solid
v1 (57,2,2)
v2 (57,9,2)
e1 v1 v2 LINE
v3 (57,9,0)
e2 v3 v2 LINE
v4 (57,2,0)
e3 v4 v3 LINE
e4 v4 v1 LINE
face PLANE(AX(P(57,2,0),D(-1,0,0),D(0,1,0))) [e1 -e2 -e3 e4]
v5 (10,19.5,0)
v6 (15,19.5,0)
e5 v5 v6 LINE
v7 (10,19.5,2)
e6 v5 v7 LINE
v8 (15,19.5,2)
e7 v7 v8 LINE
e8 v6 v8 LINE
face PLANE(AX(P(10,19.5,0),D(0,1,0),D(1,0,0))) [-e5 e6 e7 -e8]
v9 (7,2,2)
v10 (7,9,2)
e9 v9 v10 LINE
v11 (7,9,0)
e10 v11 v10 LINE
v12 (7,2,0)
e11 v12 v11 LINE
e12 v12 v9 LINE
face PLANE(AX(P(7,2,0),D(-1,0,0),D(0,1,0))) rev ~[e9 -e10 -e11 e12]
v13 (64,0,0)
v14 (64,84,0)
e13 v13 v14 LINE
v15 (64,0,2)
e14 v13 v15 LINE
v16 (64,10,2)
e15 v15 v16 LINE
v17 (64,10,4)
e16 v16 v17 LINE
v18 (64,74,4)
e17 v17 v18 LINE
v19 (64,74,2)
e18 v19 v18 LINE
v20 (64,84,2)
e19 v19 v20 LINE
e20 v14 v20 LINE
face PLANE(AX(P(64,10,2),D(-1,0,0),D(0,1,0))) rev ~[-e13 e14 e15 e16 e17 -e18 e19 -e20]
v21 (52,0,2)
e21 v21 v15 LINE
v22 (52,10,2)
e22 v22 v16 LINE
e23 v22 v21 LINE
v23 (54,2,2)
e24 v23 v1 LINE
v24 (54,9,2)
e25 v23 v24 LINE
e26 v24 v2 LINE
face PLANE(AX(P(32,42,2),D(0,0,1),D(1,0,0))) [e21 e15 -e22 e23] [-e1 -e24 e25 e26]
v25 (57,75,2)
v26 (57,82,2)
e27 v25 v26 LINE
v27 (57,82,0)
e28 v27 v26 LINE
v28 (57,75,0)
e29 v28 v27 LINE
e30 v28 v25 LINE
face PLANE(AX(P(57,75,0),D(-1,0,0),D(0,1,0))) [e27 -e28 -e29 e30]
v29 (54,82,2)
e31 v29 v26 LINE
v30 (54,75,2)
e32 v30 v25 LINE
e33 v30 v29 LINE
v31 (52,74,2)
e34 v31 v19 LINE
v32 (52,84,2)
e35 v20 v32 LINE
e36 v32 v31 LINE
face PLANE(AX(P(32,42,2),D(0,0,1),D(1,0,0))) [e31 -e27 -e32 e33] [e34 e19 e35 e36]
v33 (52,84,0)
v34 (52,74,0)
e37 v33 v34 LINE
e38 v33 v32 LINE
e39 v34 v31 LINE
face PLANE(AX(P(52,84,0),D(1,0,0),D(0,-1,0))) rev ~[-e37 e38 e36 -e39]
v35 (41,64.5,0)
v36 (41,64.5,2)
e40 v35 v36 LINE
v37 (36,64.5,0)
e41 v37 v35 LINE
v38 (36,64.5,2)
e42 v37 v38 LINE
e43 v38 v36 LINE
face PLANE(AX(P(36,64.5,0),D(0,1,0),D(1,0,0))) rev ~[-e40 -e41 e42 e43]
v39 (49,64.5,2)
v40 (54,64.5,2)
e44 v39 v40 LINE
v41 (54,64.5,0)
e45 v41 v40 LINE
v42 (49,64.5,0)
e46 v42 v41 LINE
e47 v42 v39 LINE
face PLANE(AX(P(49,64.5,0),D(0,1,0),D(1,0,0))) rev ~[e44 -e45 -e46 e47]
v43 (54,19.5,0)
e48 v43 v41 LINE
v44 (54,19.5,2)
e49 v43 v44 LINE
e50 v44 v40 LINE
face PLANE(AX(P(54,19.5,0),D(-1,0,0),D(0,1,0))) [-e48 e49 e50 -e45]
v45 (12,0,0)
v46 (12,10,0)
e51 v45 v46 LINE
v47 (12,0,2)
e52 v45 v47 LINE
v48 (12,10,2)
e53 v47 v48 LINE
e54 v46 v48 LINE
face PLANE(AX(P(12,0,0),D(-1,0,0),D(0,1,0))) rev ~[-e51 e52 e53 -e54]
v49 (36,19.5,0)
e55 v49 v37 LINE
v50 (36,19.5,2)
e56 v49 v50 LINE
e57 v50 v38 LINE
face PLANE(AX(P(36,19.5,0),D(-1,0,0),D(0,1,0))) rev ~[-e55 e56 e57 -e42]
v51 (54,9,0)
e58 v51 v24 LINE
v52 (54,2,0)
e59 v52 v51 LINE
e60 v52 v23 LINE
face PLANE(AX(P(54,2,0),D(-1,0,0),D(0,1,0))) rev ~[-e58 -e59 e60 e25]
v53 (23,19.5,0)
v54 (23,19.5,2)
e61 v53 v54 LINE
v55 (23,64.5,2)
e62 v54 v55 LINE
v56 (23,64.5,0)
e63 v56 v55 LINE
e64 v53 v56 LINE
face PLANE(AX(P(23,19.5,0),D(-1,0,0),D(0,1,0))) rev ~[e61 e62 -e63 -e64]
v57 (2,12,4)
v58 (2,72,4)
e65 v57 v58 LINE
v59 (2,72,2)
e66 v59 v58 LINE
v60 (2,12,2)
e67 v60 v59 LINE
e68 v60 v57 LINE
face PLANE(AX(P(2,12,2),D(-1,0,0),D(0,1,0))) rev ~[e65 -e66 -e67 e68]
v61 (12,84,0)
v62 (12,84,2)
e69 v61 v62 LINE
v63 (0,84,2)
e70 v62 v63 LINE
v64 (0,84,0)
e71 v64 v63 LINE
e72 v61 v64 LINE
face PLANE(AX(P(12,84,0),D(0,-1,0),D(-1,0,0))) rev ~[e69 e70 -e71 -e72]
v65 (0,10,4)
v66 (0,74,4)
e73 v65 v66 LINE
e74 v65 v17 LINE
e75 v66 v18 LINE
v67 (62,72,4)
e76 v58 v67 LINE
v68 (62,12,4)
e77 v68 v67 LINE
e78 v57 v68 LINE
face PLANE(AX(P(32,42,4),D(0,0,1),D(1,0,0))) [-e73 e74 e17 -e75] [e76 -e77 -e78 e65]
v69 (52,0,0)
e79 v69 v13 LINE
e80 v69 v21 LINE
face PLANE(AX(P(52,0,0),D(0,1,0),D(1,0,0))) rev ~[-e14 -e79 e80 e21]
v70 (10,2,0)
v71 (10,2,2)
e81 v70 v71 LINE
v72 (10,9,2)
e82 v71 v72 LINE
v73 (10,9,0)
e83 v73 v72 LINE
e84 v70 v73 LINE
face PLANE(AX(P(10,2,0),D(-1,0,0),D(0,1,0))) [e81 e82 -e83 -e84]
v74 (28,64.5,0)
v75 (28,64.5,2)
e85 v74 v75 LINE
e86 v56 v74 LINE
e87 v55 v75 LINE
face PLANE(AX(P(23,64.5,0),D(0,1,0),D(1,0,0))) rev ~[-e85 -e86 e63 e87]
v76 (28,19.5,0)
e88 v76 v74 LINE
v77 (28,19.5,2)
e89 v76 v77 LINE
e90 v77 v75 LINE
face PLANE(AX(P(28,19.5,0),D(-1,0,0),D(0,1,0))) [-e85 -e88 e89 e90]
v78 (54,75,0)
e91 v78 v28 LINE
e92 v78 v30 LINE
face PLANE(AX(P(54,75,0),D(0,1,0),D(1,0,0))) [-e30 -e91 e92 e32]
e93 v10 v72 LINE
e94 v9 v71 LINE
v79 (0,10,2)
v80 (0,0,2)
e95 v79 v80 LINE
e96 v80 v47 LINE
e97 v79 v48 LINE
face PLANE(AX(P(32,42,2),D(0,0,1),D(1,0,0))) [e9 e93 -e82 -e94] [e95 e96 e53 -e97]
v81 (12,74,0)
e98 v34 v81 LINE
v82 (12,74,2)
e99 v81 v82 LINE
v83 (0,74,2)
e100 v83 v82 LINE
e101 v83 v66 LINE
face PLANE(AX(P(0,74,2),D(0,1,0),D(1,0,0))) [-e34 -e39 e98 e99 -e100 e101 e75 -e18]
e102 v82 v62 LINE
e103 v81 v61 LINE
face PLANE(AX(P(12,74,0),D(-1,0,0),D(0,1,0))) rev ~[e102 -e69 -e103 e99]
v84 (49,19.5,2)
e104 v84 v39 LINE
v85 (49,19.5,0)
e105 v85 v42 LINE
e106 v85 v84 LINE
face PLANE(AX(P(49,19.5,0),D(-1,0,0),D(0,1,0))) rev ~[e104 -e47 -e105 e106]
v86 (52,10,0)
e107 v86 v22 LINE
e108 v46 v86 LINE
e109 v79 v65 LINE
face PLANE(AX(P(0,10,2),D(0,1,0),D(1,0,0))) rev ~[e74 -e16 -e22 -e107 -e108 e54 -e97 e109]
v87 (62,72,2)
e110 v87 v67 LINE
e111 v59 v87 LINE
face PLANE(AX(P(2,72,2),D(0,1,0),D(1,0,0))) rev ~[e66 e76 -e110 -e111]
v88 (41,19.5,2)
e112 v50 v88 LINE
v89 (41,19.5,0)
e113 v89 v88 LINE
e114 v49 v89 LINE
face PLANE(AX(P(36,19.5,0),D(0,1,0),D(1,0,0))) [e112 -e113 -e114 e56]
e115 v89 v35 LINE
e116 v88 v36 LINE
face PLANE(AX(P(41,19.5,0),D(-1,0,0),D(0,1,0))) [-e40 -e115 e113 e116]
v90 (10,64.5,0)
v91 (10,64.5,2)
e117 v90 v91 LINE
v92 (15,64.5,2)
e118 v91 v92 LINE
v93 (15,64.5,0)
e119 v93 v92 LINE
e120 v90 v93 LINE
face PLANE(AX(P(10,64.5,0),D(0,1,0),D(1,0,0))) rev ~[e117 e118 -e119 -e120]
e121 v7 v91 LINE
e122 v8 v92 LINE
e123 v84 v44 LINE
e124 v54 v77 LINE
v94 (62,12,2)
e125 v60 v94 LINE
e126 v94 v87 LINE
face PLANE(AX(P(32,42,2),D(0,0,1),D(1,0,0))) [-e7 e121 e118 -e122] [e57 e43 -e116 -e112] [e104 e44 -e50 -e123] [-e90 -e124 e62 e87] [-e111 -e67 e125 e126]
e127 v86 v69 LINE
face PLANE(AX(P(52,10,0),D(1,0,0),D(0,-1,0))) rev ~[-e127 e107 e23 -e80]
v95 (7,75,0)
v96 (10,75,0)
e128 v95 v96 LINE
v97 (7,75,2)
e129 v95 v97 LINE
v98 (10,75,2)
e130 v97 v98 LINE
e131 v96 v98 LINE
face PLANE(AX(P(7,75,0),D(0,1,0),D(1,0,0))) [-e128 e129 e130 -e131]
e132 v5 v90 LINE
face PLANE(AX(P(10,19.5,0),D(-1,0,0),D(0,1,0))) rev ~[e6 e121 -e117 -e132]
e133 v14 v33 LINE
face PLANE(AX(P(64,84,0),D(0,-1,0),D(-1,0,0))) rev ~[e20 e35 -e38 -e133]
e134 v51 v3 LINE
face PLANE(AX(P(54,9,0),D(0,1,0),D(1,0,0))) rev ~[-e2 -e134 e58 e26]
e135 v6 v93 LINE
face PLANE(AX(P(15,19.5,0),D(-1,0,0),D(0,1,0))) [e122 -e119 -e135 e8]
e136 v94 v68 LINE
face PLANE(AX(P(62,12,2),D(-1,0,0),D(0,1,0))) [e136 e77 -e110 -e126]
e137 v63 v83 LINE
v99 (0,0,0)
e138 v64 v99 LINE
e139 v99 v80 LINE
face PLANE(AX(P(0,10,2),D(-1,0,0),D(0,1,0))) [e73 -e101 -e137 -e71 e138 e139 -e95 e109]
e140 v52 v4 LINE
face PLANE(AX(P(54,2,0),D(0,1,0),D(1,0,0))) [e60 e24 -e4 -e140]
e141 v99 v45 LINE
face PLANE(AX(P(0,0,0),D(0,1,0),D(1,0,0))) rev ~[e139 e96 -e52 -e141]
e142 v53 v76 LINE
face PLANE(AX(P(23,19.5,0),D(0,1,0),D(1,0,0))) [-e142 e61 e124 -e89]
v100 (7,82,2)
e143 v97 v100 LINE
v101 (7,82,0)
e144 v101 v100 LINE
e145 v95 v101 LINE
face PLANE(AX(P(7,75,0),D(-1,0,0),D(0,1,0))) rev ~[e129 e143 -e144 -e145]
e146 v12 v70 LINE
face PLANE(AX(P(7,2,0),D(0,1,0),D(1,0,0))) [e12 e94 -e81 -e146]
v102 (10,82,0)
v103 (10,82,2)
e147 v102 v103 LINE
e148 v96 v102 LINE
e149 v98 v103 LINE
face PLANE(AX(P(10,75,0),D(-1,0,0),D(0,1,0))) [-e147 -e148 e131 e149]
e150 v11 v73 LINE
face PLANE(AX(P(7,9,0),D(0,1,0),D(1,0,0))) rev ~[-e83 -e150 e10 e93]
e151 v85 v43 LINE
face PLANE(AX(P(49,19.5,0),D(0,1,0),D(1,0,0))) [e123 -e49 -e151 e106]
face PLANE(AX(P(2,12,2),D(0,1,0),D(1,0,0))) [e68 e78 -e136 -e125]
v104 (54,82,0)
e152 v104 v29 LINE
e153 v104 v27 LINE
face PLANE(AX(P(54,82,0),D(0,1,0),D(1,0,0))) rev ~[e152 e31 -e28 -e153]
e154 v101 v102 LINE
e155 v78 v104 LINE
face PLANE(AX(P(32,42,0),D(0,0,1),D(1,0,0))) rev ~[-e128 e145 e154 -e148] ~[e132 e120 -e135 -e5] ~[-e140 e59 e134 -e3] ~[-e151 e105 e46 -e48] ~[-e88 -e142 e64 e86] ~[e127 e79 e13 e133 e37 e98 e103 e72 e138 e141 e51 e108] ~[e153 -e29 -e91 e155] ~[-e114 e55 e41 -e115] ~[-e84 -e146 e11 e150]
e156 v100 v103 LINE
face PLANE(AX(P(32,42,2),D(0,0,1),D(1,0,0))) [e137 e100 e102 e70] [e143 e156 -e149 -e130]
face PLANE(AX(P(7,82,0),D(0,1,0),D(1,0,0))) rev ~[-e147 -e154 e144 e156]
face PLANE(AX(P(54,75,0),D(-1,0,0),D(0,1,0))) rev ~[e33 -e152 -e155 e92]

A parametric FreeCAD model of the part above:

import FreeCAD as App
import Part
import Sketcher
from FreeCAD import Vector
Q = App.Units.Quantity

doc = App.newDocument("Part")
body = doc.addObject("PartDesign::Body", "Body")

# Sketch on XY plane
sketch1 = body.newObject("Sketcher::SketchObject", "Sketch")
sketch1.AttachmentSupport = (doc.getObject("XY_Plane"), [""])
sketch1.MapMode = "FlatFace"
sketch1.addGeometry([
    Part.LineSegment(Vector(64, 0, 0), Vector(64, 84, 0)),  # 0
    Part.LineSegment(Vector(64, 84, 0), Vector(52, 84, 0)),  # 1
    Part.LineSegment(Vector(52, 84, 0), Vector(52, 74, 0)),  # 2
    Part.LineSegment(Vector(52, 74, 0), Vector(12, 74, 0)),  # 3
    Part.LineSegment(Vector(12, 74, 0), Vector(12, 84, 0)),  # 4
    Part.LineSegment(Vector(12, 84, 0), Vector(0, 84, 0)),  # 5
    Part.LineSegment(Vector(0, 84, 0), Vector(0, 0, 0)),  # 6
    Part.LineSegment(Vector(0, 0, 0), Vector(12, 0, 0)),  # 7
    Part.LineSegment(Vector(12, 0, 0), Vector(12, 10, 0)),  # 8
    Part.LineSegment(Vector(12, 10, 0), Vector(52, 10, 0)),  # 9
    Part.LineSegment(Vector(52, 10, 0), Vector(52, 0, 0)),  # 10
    Part.LineSegment(Vector(52, 0, 0), Vector(64, 0, 0)),  # 11
    Part.LineSegment(Vector(10, 2, 0), Vector(7, 2, 0)),  # 12
    Part.LineSegment(Vector(7, 2, 0), Vector(7, 9, 0)),  # 13
    Part.LineSegment(Vector(7, 9, 0), Vector(10, 9, 0)),  # 14
    Part.LineSegment(Vector(10, 9, 0), Vector(10, 2, 0)),  # 15
    Part.LineSegment(Vector(57, 2, 0), Vector(54, 2, 0)),  # 16
    Part.LineSegment(Vector(54, 2, 0), Vector(54, 9, 0)),  # 17
    Part.LineSegment(Vector(54, 9, 0), Vector(57, 9, 0)),  # 18
    Part.LineSegment(Vector(57, 9, 0), Vector(57, 2, 0)),  # 19
    Part.LineSegment(Vector(15, 19.5, 0), Vector(10, 19.5, 0)),  # 20
    Part.LineSegment(Vector(10, 19.5, 0), Vector(10, 64.5, 0)),  # 21
    Part.LineSegment(Vector(10, 64.5, 0), Vector(15, 64.5, 0)),  # 22
    Part.LineSegment(Vector(15, 64.5, 0), Vector(15, 19.5, 0)),  # 23
    Part.LineSegment(Vector(28, 19.5, 0), Vector(23, 19.5, 0)),  # 24
    Part.LineSegment(Vector(23, 19.5, 0), Vector(23, 64.5, 0)),  # 25
    Part.LineSegment(Vector(23, 64.5, 0), Vector(28, 64.5, 0)),  # 26
    Part.LineSegment(Vector(28, 64.5, 0), Vector(28, 19.5, 0)),  # 27
    Part.LineSegment(Vector(10, 75, 0), Vector(7, 75, 0)),  # 28
    Part.LineSegment(Vector(7, 75, 0), Vector(7, 82, 0)),  # 29
    Part.LineSegment(Vector(7, 82, 0), Vector(10, 82, 0)),  # 30
    Part.LineSegment(Vector(10, 82, 0), Vector(10, 75, 0)),  # 31
    Part.LineSegment(Vector(41, 19.5, 0), Vector(36, 19.5, 0)),  # 32
    Part.LineSegment(Vector(36, 19.5, 0), Vector(36, 64.5, 0)),  # 33
    Part.LineSegment(Vector(36, 64.5, 0), Vector(41, 64.5, 0)),  # 34
    Part.LineSegment(Vector(41, 64.5, 0), Vector(41, 19.5, 0)),  # 35
    Part.LineSegment(Vector(54, 19.5, 0), Vector(49, 19.5, 0)),  # 36
    Part.LineSegment(Vector(49, 19.5, 0), Vector(49, 64.5, 0)),  # 37
    Part.LineSegment(Vector(49, 64.5, 0), Vector(54, 64.5, 0)),  # 38
    Part.LineSegment(Vector(54, 64.5, 0), Vector(54, 19.5, 0)),  # 39
    Part.LineSegment(Vector(57, 75, 0), Vector(54, 75, 0)),  # 40
    Part.LineSegment(Vector(54, 75, 0), Vector(54, 82, 0)),  # 41
    Part.LineSegment(Vector(54, 82, 0), Vector(57, 82, 0)),  # 42
    Part.LineSegment(Vector(57, 82, 0), Vector(57, 75, 0)),  # 43
], False)
sketch1.addConstraint([
    Sketcher.Constraint("Coincident", 0, 2, 1, 1),
    Sketcher.Constraint("Coincident", 1, 2, 2, 1),
    Sketcher.Constraint("Coincident", 2, 2, 3, 1),
    Sketcher.Constraint("Coincident", 3, 2, 4, 1),
    Sketcher.Constraint("Coincident", 4, 2, 5, 1),
    Sketcher.Constraint("Coincident", 5, 2, 6, 1),
    Sketcher.Constraint("Coincident", 6, 2, 7, 1),
    Sketcher.Constraint("Coincident", 7, 2, 8, 1),
    Sketcher.Constraint("Coincident", 8, 2, 9, 1),
    Sketcher.Constraint("Coincident", 9, 2, 10, 1),
    Sketcher.Constraint("Coincident", 10, 2, 11, 1),
    Sketcher.Constraint("Coincident", 11, 2, 0, 1),
    Sketcher.Constraint("Coincident", 12, 2, 13, 1),
    Sketcher.Constraint("Coincident", 13, 2, 14, 1),
    Sketcher.Constraint("Coincident", 14, 2, 15, 1),
    Sketcher.Constraint("Coincident", 15, 2, 12, 1),
    Sketcher.Constraint("Coincident", 16, 2, 17, 1),
    Sketcher.Constraint("Coincident", 17, 2, 18, 1),
    Sketcher.Constraint("Coincident", 18, 2, 19, 1),
    Sketcher.Constraint("Coincident", 19, 2, 16, 1),
    Sketcher.Constraint("Coincident", 20, 2, 21, 1),
    Sketcher.Constraint("Coincident", 21, 2, 22, 1),
    Sketcher.Constraint("Coincident", 22, 2, 23, 1),
    Sketcher.Constraint("Coincident", 23, 2, 20, 1),
    Sketcher.Constraint("Coincident", 24, 2, 25, 1),
    Sketcher.Constraint("Coincident", 25, 2, 26, 1),
    Sketcher.Constraint("Coincident", 26, 2, 27, 1),
    Sketcher.Constraint("Coincident", 27, 2, 24, 1),
    Sketcher.Constraint("Coincident", 28, 2, 29, 1),
    Sketcher.Constraint("Coincident", 29, 2, 30, 1),
    Sketcher.Constraint("Coincident", 30, 2, 31, 1),
    Sketcher.Constraint("Coincident", 31, 2, 28, 1),
    Sketcher.Constraint("Coincident", 32, 2, 33, 1),
    Sketcher.Constraint("Coincident", 33, 2, 34, 1),
    Sketcher.Constraint("Coincident", 34, 2, 35, 1),
    Sketcher.Constraint("Coincident", 35, 2, 32, 1),
    Sketcher.Constraint("Coincident", 36, 2, 37, 1),
    Sketcher.Constraint("Coincident", 37, 2, 38, 1),
    Sketcher.Constraint("Coincident", 38, 2, 39, 1),
    Sketcher.Constraint("Coincident", 39, 2, 36, 1),
    Sketcher.Constraint("Coincident", 40, 2, 41, 1),
    Sketcher.Constraint("Coincident", 41, 2, 42, 1),
    Sketcher.Constraint("Coincident", 42, 2, 43, 1),
    Sketcher.Constraint("Coincident", 43, 2, 40, 1),
    Sketcher.Constraint("Vertical", 0),
    Sketcher.Constraint("Horizontal", 1),
    Sketcher.Constraint("Vertical", 2),
    Sketcher.Constraint("Horizontal", 3),
    Sketcher.Constraint("Vertical", 4),
    Sketcher.Constraint("Horizontal", 5),
    Sketcher.Constraint("Vertical", 6),
    Sketcher.Constraint("Horizontal", 7),
    Sketcher.Constraint("Vertical", 8),
    Sketcher.Constraint("Horizontal", 9),
    Sketcher.Constraint("Vertical", 10),
    Sketcher.Constraint("Horizontal", 11),
    Sketcher.Constraint("Horizontal", 12),
    Sketcher.Constraint("Vertical", 13),
    Sketcher.Constraint("Horizontal", 14),
    Sketcher.Constraint("Vertical", 15),
    Sketcher.Constraint("Horizontal", 16),
    Sketcher.Constraint("Vertical", 17),
    Sketcher.Constraint("Horizontal", 18),
    Sketcher.Constraint("Vertical", 19),
    Sketcher.Constraint("Horizontal", 20),
    Sketcher.Constraint("Vertical", 21),
    Sketcher.Constraint("Horizontal", 22),
    Sketcher.Constraint("Vertical", 23),
    Sketcher.Constraint("Horizontal", 24),
    Sketcher.Constraint("Vertical", 25),
    Sketcher.Constraint("Horizontal", 26),
    Sketcher.Constraint("Vertical", 27),
    Sketcher.Constraint("Horizontal", 28),
    Sketcher.Constraint("Vertical", 29),
    Sketcher.Constraint("Horizontal", 30),
    Sketcher.Constraint("Vertical", 31),
    Sketcher.Constraint("Horizontal", 32),
    Sketcher.Constraint("Vertical", 33),
    Sketcher.Constraint("Horizontal", 34),
    Sketcher.Constraint("Vertical", 35),
    Sketcher.Constraint("Horizontal", 36),
    Sketcher.Constraint("Vertical", 37),
    Sketcher.Constraint("Horizontal", 38),
    Sketcher.Constraint("Vertical", 39),
    Sketcher.Constraint("Horizontal", 40),
    Sketcher.Constraint("Vertical", 41),
    Sketcher.Constraint("Horizontal", 42),
    Sketcher.Constraint("Vertical", 43),
    Sketcher.Constraint("Coincident", 6, 2, -1, 1),
    Sketcher.Constraint("PointOnObject", 10, 2, -1),
    Sketcher.Constraint("Horizontal", 1, 2, 4, 2),
    Sketcher.Constraint("Horizontal", 15, 2, 16, 2),
    Sketcher.Constraint("Horizontal", 14, 2, 17, 2),
    Sketcher.Constraint("Horizontal", 23, 2, 24, 2),
    Sketcher.Constraint("Horizontal", 22, 2, 25, 2),
    Sketcher.Constraint("Horizontal", 27, 2, 32, 2),
    Sketcher.Constraint("Horizontal", 26, 2, 33, 2),
    Sketcher.Constraint("Horizontal", 35, 2, 36, 2),
    Sketcher.Constraint("Horizontal", 34, 2, 37, 2),
    Sketcher.Constraint("Horizontal", 31, 2, 40, 2),
    Sketcher.Constraint("Horizontal", 30, 2, 41, 2),
    Sketcher.Constraint("Vertical", 4, 2, 7, 2),
    Sketcher.Constraint("Vertical", 2, 2, 9, 2),
    Sketcher.Constraint("Vertical", 15, 2, 20, 2),
    Sketcher.Constraint("Vertical", 13, 2, 28, 2),
    Sketcher.Constraint("Vertical", 21, 2, 30, 2),
    Sketcher.Constraint("Vertical", 17, 2, 38, 2),
    Sketcher.Constraint("Vertical", 39, 2, 40, 2),
    Sketcher.Constraint("Vertical", 19, 2, 42, 2),
    Sketcher.Constraint("Equal", 1, 5),
    Sketcher.Constraint("Equal", 14, 16),
    Sketcher.Constraint("Equal", 22, 24),
    Sketcher.Constraint("Equal", 26, 32),
    Sketcher.Constraint("Equal", 34, 36),
    Sketcher.Constraint("Equal", 4, 8),
    Sketcher.Constraint("Equal", 19, 29),
    Sketcher.Constraint("DistanceX", 1, 2, 1, 1, Q("12 mm")),
    Sketcher.Constraint("DistanceX", 3, 2, 3, 1, Q("40 mm")),
    Sketcher.Constraint("DistanceX", 12, 2, 12, 1, Q("3 mm")),
    Sketcher.Constraint("DistanceX", 20, 2, 20, 1, Q("5 mm")),
    Sketcher.Constraint("DistanceY", 0, 1, 0, 2, Q("84 mm")),
    Sketcher.Constraint("DistanceY", 2, 2, 2, 1, Q("10 mm")),
    Sketcher.Constraint("DistanceY", 13, 1, 13, 2, Q("7 mm")),
    Sketcher.Constraint("DistanceY", 21, 1, 21, 2, Q("45 mm")),
    Sketcher.Constraint("DistanceX", -1, 1, 12, 2, Q("7 mm")),
    Sketcher.Constraint("DistanceY", -1, 1, 12, 2, Q("2 mm")),
    Sketcher.Constraint("DistanceX", -1, 1, 16, 2, Q("54 mm")),
    Sketcher.Constraint("DistanceX", -1, 1, 24, 2, Q("23 mm")),
    Sketcher.Constraint("DistanceY", -1, 1, 28, 2, Q("75 mm")),
    Sketcher.Constraint("DistanceX", -1, 1, 32, 2, Q("36 mm")),
    Sketcher.Constraint("DistanceY", -1, 1, 20, 2, Q("19.5 mm")),
])
pad1 = body.newObject("PartDesign::Pad", "Pad")
pad1.Profile = sketch1
pad1.Length = 2

# Sketch on XY plane
sketch2 = body.newObject("Sketcher::SketchObject", "Sketch001")
sketch2.AttachmentSupport = (doc.getObject("XY_Plane"), [""])
sketch2.MapMode = "FlatFace"
sketch2.AttachmentOffset = App.Placement(Vector(0, 0, 2), App.Rotation())
sketch2.addGeometry([
    Part.LineSegment(Vector(0, 74, 0), Vector(0, 10, 0)),  # 0
    Part.LineSegment(Vector(0, 10, 0), Vector(64, 10, 0)),  # 1
    Part.LineSegment(Vector(64, 10, 0), Vector(64, 74, 0)),  # 2
    Part.LineSegment(Vector(64, 74, 0), Vector(0, 74, 0)),  # 3
    Part.LineSegment(Vector(62, 12, 0), Vector(2, 12, 0)),  # 4
    Part.LineSegment(Vector(2, 12, 0), Vector(2, 72, 0)),  # 5
    Part.LineSegment(Vector(2, 72, 0), Vector(62, 72, 0)),  # 6
    Part.LineSegment(Vector(62, 72, 0), Vector(62, 12, 0)),  # 7
], False)
sketch2.addConstraint([
    Sketcher.Constraint("Coincident", 0, 2, 1, 1),
    Sketcher.Constraint("Coincident", 1, 2, 2, 1),
    Sketcher.Constraint("Coincident", 2, 2, 3, 1),
    Sketcher.Constraint("Coincident", 3, 2, 0, 1),
    Sketcher.Constraint("Coincident", 4, 2, 5, 1),
    Sketcher.Constraint("Coincident", 5, 2, 6, 1),
    Sketcher.Constraint("Coincident", 6, 2, 7, 1),
    Sketcher.Constraint("Coincident", 7, 2, 4, 1),
    Sketcher.Constraint("Vertical", 0),
    Sketcher.Constraint("Horizontal", 1),
    Sketcher.Constraint("Vertical", 2),
    Sketcher.Constraint("Horizontal", 3),
    Sketcher.Constraint("Horizontal", 4),
    Sketcher.Constraint("Vertical", 5),
    Sketcher.Constraint("Horizontal", 6),
    Sketcher.Constraint("Vertical", 7),
    Sketcher.Constraint("PointOnObject", 0, 2, -2),
    Sketcher.Constraint("Equal", 3, 0),
    Sketcher.Constraint("Equal", 6, 5),
    Sketcher.Constraint("DistanceX", 1, 1, 1, 2, Q("64 mm")),
    Sketcher.Constraint("DistanceX", 4, 2, 4, 1, Q("60 mm")),
    Sketcher.Constraint("DistanceY", -1, 1, 0, 2, Q("10 mm")),
    Sketcher.Constraint("DistanceX", -1, 1, 4, 2, Q("2 mm")),
    Sketcher.Constraint("DistanceY", -1, 1, 4, 2, Q("12 mm")),
])
pad2 = body.newObject("PartDesign::Pad", "Pad001")
pad2.Profile = sketch2
pad2.Length = 2

doc.recompute()
